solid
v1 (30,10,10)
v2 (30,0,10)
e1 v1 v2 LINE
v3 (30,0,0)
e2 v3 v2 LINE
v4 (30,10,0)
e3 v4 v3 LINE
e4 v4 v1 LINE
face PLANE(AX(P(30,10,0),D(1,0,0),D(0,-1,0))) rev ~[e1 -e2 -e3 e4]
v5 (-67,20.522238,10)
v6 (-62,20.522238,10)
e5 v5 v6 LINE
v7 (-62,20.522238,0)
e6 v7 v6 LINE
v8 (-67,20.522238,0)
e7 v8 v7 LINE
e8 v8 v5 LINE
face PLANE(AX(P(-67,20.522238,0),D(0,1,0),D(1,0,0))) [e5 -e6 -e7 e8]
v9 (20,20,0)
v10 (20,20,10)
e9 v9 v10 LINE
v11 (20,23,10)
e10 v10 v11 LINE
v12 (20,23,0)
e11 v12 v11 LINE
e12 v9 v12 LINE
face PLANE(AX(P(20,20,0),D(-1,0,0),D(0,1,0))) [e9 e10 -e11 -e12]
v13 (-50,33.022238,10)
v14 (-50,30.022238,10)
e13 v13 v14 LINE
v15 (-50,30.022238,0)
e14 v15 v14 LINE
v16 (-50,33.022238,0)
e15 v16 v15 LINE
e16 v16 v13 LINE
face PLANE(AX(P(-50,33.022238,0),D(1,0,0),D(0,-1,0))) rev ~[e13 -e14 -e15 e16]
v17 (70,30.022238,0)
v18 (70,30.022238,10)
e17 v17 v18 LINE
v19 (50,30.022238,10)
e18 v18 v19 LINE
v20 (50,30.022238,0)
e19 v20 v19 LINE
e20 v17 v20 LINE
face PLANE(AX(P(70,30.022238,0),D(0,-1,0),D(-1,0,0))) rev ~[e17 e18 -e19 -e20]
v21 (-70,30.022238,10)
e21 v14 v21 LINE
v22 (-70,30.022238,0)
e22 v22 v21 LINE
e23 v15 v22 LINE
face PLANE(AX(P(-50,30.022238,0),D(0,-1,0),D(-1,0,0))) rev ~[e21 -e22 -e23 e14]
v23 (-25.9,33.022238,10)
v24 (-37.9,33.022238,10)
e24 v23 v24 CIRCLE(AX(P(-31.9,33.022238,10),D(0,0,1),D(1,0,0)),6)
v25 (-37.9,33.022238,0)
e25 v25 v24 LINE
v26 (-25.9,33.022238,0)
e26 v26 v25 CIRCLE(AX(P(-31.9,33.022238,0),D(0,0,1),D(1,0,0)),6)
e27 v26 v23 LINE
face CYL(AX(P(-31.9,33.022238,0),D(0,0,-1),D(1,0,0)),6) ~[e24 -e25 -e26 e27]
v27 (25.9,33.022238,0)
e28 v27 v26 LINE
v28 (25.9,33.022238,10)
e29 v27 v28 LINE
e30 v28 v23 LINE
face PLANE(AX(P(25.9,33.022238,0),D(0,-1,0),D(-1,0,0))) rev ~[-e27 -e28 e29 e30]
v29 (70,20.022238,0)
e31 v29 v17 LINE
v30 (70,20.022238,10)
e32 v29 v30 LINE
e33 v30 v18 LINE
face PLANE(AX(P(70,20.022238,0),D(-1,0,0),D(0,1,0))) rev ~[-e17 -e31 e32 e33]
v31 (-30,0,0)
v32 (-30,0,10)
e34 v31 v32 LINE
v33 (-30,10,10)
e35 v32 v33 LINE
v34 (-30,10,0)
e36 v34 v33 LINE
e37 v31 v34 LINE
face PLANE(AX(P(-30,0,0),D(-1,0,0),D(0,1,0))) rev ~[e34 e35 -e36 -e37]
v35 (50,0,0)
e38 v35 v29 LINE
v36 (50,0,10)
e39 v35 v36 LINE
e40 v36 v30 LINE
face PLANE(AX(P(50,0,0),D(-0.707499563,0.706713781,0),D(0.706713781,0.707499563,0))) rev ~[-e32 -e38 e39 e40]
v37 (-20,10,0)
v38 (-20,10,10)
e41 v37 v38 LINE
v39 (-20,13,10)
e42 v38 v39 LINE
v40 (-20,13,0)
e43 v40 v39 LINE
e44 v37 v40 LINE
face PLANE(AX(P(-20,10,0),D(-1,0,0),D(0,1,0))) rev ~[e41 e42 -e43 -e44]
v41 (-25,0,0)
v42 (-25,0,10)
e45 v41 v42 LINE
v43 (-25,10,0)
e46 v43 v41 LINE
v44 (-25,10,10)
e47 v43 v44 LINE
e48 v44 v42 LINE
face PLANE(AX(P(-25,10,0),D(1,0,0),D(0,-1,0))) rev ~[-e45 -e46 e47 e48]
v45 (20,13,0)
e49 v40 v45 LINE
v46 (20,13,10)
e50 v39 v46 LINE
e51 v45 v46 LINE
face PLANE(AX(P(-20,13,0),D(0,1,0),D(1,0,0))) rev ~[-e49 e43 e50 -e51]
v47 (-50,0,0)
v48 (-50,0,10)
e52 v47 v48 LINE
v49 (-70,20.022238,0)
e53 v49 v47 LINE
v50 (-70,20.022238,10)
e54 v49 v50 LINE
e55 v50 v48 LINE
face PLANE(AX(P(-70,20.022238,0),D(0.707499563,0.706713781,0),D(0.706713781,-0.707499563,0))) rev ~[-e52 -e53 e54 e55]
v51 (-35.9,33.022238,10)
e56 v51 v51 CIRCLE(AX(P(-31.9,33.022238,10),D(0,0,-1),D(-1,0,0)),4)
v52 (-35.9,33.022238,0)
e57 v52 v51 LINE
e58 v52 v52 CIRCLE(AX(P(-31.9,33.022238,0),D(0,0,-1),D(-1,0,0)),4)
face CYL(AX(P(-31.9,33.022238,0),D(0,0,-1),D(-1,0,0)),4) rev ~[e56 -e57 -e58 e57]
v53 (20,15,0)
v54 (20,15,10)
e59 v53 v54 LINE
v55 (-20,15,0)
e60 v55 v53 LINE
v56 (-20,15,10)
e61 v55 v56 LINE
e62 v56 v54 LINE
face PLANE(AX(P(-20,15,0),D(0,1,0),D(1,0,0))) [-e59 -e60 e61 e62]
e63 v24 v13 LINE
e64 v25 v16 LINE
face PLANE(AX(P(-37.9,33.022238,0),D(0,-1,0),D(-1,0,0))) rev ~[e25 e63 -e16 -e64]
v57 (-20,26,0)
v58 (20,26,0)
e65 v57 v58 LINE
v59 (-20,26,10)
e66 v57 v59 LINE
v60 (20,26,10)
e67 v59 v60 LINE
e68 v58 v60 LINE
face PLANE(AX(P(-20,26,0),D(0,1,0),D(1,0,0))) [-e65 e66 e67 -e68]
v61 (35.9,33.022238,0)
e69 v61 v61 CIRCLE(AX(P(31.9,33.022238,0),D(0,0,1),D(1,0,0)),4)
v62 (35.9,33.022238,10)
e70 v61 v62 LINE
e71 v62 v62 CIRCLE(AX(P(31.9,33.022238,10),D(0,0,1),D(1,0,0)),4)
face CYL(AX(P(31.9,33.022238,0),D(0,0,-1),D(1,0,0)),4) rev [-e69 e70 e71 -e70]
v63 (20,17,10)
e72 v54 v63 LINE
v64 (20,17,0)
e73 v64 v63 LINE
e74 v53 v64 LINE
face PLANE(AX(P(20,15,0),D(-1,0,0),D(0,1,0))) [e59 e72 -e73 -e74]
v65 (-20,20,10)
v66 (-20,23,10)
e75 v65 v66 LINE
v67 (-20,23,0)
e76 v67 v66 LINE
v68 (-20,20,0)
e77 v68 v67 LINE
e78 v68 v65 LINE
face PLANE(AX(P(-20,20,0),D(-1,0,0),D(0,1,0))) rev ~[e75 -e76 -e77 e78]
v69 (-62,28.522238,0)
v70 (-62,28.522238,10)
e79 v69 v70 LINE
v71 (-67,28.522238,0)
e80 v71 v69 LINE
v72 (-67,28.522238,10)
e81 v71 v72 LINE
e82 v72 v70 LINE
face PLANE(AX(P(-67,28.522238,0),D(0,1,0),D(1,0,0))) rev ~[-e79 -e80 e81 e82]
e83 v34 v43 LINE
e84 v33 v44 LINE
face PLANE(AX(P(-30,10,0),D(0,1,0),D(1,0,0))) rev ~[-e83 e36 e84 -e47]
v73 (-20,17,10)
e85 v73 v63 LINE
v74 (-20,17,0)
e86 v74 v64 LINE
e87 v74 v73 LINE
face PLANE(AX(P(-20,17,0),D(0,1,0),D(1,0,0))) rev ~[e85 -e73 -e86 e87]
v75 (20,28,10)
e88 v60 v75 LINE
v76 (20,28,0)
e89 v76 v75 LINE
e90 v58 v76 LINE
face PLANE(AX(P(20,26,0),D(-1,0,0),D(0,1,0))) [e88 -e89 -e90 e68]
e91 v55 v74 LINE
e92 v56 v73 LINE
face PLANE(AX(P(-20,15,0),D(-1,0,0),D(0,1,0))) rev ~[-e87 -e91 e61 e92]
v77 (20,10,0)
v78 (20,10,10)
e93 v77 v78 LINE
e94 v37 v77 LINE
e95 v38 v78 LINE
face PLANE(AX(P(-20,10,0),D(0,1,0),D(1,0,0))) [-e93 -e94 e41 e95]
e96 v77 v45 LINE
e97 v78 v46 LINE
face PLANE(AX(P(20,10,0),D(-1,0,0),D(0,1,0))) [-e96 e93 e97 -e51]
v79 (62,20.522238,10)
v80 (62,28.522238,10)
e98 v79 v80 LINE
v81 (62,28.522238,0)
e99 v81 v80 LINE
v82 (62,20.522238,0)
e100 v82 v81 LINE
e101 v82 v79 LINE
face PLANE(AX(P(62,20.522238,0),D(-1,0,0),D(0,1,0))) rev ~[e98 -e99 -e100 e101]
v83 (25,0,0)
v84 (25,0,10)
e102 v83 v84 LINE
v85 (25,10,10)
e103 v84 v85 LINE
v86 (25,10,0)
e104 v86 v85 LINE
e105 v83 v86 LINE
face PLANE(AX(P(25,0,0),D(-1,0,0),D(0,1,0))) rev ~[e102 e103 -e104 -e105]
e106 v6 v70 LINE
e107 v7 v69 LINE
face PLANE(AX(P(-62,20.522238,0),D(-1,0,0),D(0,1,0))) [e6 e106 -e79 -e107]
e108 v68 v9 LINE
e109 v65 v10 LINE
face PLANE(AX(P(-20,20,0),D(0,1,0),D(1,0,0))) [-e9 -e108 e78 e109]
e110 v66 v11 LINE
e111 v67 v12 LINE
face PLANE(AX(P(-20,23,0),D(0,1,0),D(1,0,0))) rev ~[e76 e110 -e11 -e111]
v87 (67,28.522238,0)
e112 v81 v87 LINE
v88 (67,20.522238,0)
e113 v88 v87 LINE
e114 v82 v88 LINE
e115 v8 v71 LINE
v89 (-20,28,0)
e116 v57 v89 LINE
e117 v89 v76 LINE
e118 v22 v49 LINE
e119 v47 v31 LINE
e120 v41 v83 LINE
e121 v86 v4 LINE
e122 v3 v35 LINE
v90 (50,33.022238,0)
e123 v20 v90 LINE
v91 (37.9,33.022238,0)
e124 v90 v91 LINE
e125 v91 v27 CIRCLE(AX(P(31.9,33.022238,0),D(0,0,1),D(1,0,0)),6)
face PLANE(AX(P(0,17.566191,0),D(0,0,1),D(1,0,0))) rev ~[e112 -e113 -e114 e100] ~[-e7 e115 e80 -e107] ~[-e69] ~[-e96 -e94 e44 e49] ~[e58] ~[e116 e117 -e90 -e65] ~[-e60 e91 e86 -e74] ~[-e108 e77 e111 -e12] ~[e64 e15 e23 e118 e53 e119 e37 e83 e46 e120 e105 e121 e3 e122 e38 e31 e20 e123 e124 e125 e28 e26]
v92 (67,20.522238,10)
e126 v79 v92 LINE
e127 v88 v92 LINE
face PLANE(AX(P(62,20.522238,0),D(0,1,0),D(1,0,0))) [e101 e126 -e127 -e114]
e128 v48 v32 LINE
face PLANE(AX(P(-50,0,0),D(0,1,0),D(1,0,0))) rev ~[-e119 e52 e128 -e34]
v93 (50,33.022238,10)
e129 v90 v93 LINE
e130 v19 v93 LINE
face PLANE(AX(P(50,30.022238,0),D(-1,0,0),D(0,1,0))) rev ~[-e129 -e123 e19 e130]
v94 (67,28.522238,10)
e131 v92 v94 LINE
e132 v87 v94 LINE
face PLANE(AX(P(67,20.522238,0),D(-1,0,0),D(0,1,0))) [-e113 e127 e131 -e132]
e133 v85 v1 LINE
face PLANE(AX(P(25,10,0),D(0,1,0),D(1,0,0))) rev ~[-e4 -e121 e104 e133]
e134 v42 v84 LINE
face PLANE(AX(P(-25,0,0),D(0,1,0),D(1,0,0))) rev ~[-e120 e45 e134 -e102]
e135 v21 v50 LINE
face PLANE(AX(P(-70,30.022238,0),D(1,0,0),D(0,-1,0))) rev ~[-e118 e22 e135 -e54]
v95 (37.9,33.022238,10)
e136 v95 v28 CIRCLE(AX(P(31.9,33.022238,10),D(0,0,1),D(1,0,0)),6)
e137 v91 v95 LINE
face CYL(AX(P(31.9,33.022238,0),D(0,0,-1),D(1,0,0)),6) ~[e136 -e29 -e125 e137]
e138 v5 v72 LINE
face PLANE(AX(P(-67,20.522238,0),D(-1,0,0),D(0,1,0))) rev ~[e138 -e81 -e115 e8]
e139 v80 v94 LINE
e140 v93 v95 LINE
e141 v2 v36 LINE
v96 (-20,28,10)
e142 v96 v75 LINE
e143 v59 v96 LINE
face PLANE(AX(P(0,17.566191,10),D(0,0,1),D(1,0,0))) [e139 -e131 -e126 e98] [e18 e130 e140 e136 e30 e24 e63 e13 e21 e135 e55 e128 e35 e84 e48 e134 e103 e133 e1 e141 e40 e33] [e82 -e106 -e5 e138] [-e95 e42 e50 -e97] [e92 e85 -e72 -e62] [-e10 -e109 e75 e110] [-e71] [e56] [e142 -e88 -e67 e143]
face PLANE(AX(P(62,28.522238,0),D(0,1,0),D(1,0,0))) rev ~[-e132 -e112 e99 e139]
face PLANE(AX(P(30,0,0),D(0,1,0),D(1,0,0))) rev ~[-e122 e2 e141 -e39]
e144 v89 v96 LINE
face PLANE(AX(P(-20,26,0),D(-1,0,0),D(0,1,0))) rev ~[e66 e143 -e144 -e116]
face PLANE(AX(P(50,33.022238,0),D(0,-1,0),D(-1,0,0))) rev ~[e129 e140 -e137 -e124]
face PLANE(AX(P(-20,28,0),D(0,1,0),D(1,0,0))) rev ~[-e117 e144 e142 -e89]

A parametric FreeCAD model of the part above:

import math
import FreeCAD as App
import Part
import Sketcher

V = App.Vector

doc = App.newDocument("Part")
body = doc.addObject("PartDesign::Body", "Body")

sketch1 = body.newObject("Sketcher::SketchObject", "Sketch")
sketch1.AttachmentSupport = (doc.getObject("XY_Plane"), [""])
sketch1.MapMode = "FlatFace"
sketch1.addGeometry([
    Part.LineSegment(V(-25, 10, 0), V(-25, 0, 0)),
    Part.LineSegment(V(-25, 0, 0), V(25, 0, 0)),
    Part.LineSegment(V(25, 0, 0), V(25, 10, 0)),
    Part.LineSegment(V(25, 10, 0), V(30, 10, 0)),
    Part.LineSegment(V(30, 10, 0), V(30, 0, 0)),
    Part.LineSegment(V(30, 0, 0), V(50, 0, 0)),
    Part.LineSegment(V(50, 0, 0), V(70, 20, 0)),
    Part.LineSegment(V(70, 20, 0), V(70, 30, 0)),
    Part.LineSegment(V(70, 30, 0), V(50, 30, 0)),
    Part.LineSegment(V(50, 30, 0), V(50, 33, 0)),
    Part.LineSegment(V(50, 33, 0), V(37.9, 33, 0)),
    Part.ArcOfCircle(Part.Circle(V(31.9, 33, 0), V(0, 0, 1), 6), math.radians(0), math.radians(180)),
    Part.LineSegment(V(25.9, 33, 0), V(-25.9, 33, 0)),
    Part.ArcOfCircle(Part.Circle(V(-31.9, 33, 0), V(0, 0, 1), 6), math.radians(0), math.radians(180)),
    Part.LineSegment(V(-37.9, 33, 0), V(-50, 33, 0)),
    Part.LineSegment(V(-50, 33, 0), V(-50, 30, 0)),
    Part.LineSegment(V(-50, 30, 0), V(-70, 30, 0)),
    Part.LineSegment(V(-70, 30, 0), V(-70, 20, 0)),
    Part.LineSegment(V(-70, 20, 0), V(-50, 0, 0)),
    Part.LineSegment(V(-50, 0, 0), V(-30, 0, 0)),
    Part.LineSegment(V(-30, 0, 0), V(-30, 10, 0)),
    Part.LineSegment(V(-30, 10, 0), V(-25, 10, 0)),
    Part.LineSegment(V(20, 10, 0), V(-20, 10, 0)),
    Part.LineSegment(V(-20, 10, 0), V(-20, 13, 0)),
    Part.LineSegment(V(-20, 13, 0), V(20, 13, 0)),
    Part.LineSegment(V(20, 13, 0), V(20, 10, 0)),
    Part.LineSegment(V(20, 15, 0), V(-20, 15, 0)),
    Part.LineSegment(V(-20, 15, 0), V(-20, 17, 0)),
    Part.LineSegment(V(-20, 17, 0), V(20, 17, 0)),
    Part.LineSegment(V(20, 17, 0), V(20, 15, 0)),
    Part.LineSegment(V(20, 20, 0), V(-20, 20, 0)),
    Part.LineSegment(V(-20, 20, 0), V(-20, 23, 0)),
    Part.LineSegment(V(-20, 23, 0), V(20, 23, 0)),
    Part.LineSegment(V(20, 23, 0), V(20, 20, 0)),
    Part.LineSegment(V(-62, 20.5, 0), V(-67, 20.5, 0)),
    Part.LineSegment(V(-67, 20.5, 0), V(-67, 28.5, 0)),
    Part.LineSegment(V(-67, 28.5, 0), V(-62, 28.5, 0)),
    Part.LineSegment(V(-62, 28.5, 0), V(-62, 20.5, 0)),
    Part.Circle(V(-31.9, 33, 0), V(0, 0, 1), 4),
    Part.LineSegment(V(20, 26, 0), V(-20, 26, 0)),
    Part.LineSegment(V(-20, 26, 0), V(-20, 28, 0)),
    Part.LineSegment(V(-20, 28, 0), V(20, 28, 0)),
    Part.LineSegment(V(20, 28, 0), V(20, 26, 0)),
    Part.LineSegment(V(67, 20.5, 0), V(62, 20.5, 0)),
    Part.LineSegment(V(62, 20.5, 0), V(62, 28.5, 0)),
    Part.LineSegment(V(62, 28.5, 0), V(67, 28.5, 0)),
    Part.LineSegment(V(67, 28.5, 0), V(67, 20.5, 0)),
    Part.Circle(V(31.9, 33, 0), V(0, 0, 1), 4),
], False)
sketch1.addConstraint([
    Sketcher.Constraint("Coincident", 0, 2, 1, 1),
    Sketcher.Constraint("Coincident", 1, 2, 2, 1),
    Sketcher.Constraint("Coincident", 2, 2, 3, 1),
    Sketcher.Constraint("Coincident", 3, 2, 4, 1),
    Sketcher.Constraint("Coincident", 4, 2, 5, 1),
    Sketcher.Constraint("Coincident", 5, 2, 6, 1),
    Sketcher.Constraint("Coincident", 6, 2, 7, 1),
    Sketcher.Constraint("Coincident", 7, 2, 8, 1),
    Sketcher.Constraint("Coincident", 8, 2, 9, 1),
    Sketcher.Constraint("Coincident", 9, 2, 10, 1),
    Sketcher.Constraint("Coincident", 10, 2, 11, 1),
    Sketcher.Constraint("Coincident", 11, 2, 12, 1),
    Sketcher.Constraint("Coincident", 12, 2, 13, 1),
    Sketcher.Constraint("Coincident", 13, 2, 14, 1),
    Sketcher.Constraint("Coincident", 14, 2, 15, 1),
    Sketcher.Constraint("Coincident", 15, 2, 16, 1),
    Sketcher.Constraint("Coincident", 16, 2, 17, 1),
    Sketcher.Constraint("Coincident", 17, 2, 18, 1),
    Sketcher.Constraint("Coincident", 18, 2, 19, 1),
    Sketcher.Constraint("Coincident", 19, 2, 20, 1),
    Sketcher.Constraint("Coincident", 20, 2, 21, 1),
    Sketcher.Constraint("Coincident", 21, 2, 0, 1),
    Sketcher.Constraint("Coincident", 22, 2, 23, 1),
    Sketcher.Constraint("Coincident", 23, 2, 24, 1),
    Sketcher.Constraint("Coincident", 24, 2, 25, 1),
    Sketcher.Constraint("Coincident", 25, 2, 22, 1),
    Sketcher.Constraint("Coincident", 26, 2, 27, 1),
    Sketcher.Constraint("Coincident", 27, 2, 28, 1),
    Sketcher.Constraint("Coincident", 28, 2, 29, 1),
    Sketcher.Constraint("Coincident", 29, 2, 26, 1),
    Sketcher.Constraint("Coincident", 30, 2, 31, 1),
    Sketcher.Constraint("Coincident", 31, 2, 32, 1),
    Sketcher.Constraint("Coincident", 32, 2, 33, 1),
    Sketcher.Constraint("Coincident", 33, 2, 30, 1),
    Sketcher.Constraint("Coincident", 34, 2, 35, 1),
    Sketcher.Constraint("Coincident", 35, 2, 36, 1),
    Sketcher.Constraint("Coincident", 36, 2, 37, 1),
    Sketcher.Constraint("Coincident", 37, 2, 34, 1),
    Sketcher.Constraint("Coincident", 39, 2, 40, 1),
    Sketcher.Constraint("Coincident", 40, 2, 41, 1),
    Sketcher.Constraint("Coincident", 41, 2, 42, 1),
    Sketcher.Constraint("Coincident", 42, 2, 39, 1),
    Sketcher.Constraint("Coincident", 43, 2, 44, 1),
    Sketcher.Constraint("Coincident", 44, 2, 45, 1),
    Sketcher.Constraint("Coincident", 45, 2, 46, 1),
    Sketcher.Constraint("Coincident", 46, 2, 43, 1),
    Sketcher.Constraint("Vertical", 0),
    Sketcher.Constraint("Horizontal", 1),
    Sketcher.Constraint("Vertical", 2),
    Sketcher.Constraint("Horizontal", 3),
    Sketcher.Constraint("Vertical", 4),
    Sketcher.Constraint("Horizontal", 5),
    Sketcher.Constraint("Vertical", 7),
    Sketcher.Constraint("Horizontal", 8),
    Sketcher.Constraint("Vertical", 9),
    Sketcher.Constraint("Horizontal", 10),
    Sketcher.Constraint("Horizontal", 12),
    Sketcher.Constraint("Horizontal", 14),
    Sketcher.Constraint("Vertical", 15),
    Sketcher.Constraint("Horizontal", 16),
    Sketcher.Constraint("Vertical", 17),
    Sketcher.Constraint("Horizontal", 19),
    Sketcher.Constraint("Vertical", 20),
    Sketcher.Constraint("Horizontal", 21),
    Sketcher.Constraint("Horizontal", 22),
    Sketcher.Constraint("Vertical", 23),
    Sketcher.Constraint("Horizontal", 24),
    Sketcher.Constraint("Vertical", 25),
    Sketcher.Constraint("Horizontal", 26),
    Sketcher.Constraint("Vertical", 27),
    Sketcher.Constraint("Horizontal", 28),
    Sketcher.Constraint("Vertical", 29),
    Sketcher.Constraint("Horizontal", 30),
    Sketcher.Constraint("Vertical", 31),
    Sketcher.Constraint("Horizontal", 32),
    Sketcher.Constraint("Vertical", 33),
    Sketcher.Constraint("Horizontal", 34),
    Sketcher.Constraint("Vertical", 35),
    Sketcher.Constraint("Horizontal", 36),
    Sketcher.Constraint("Vertical", 37),
    Sketcher.Constraint("Horizontal", 39),
    Sketcher.Constraint("Vertical", 40),
    Sketcher.Constraint("Horizontal", 41),
    Sketcher.Constraint("Vertical", 42),
    Sketcher.Constraint("Horizontal", 43),
    Sketcher.Constraint("Vertical", 44),
    Sketcher.Constraint("Horizontal", 45),
    Sketcher.Constraint("Vertical", 46),
    Sketcher.Constraint("Coincident", 38, 3, 13, 3),
    Sketcher.Constraint("Coincident", 47, 3, 11, 3),
    Sketcher.Constraint("Equal", 11, 13),
    Sketcher.Constraint("Equal", 38, 47),
    Sketcher.Constraint("Symmetric", 0, 2, 1, 2, -1, 1),
    Sketcher.Constraint("Symmetric", 5, 2, 18, 2, -1, 1),
    Sketcher.Constraint("Symmetric", 11, 3, 13, 3, -2),
    Sketcher.Constraint("Symmetric", 9, 2, 14, 2, -2),
    Sketcher.Constraint("Symmetric", 7, 2, 16, 2, -2),
    Sketcher.Constraint("Symmetric", 4, 2, 19, 2, -2),
    Sketcher.Constraint("Symmetric", 37, 2, 43, 2, -2),
    Sketcher.Constraint("Symmetric", 35, 2, 45, 2, -2),
    Sketcher.Constraint("Horizontal", 47, 3, 9, 2),
    Sketcher.Constraint("Horizontal", 10, 2, 11, 2),
    Sketcher.Constraint("Horizontal", 6, 2, 17, 2),
    Sketcher.Constraint("Horizontal", 3, 2, 20, 2),
    Sketcher.Constraint("Horizontal", 21, 2, 22, 2),
    Sketcher.Constraint("Vertical", 5, 2, 8, 2),
    Sketcher.Constraint("Vertical", 23, 2, 26, 2),
    Sketcher.Constraint("Vertical", 25, 2, 28, 2),
    Sketcher.Constraint("Vertical", 27, 2, 30, 2),
    Sketcher.Constraint("Vertical", 29, 2, 32, 2),
    Sketcher.Constraint("Vertical", 31, 2, 39, 2),
    Sketcher.Constraint("Vertical", 33, 2, 41, 2),
    Sketcher.Constraint("Equal", 5, 8),
    Sketcher.Constraint("Equal", 21, 34),
    Sketcher.Constraint("Equal", 4, 7),
    Sketcher.Constraint("Equal", 15, 23),
    Sketcher.Constraint("Equal", 25, 31),
    Sketcher.Constraint("Equal", 29, 40),
    Sketcher.Constraint("Diameter", 38, 8.0),
    Sketcher.Constraint("Radius", 11, 6.0),
    Sketcher.Constraint("DistanceX", 1, 1, 1, 2, 50.0),
    Sketcher.Constraint("DistanceX", 3, 1, 3, 2, 5.0),
    Sketcher.Constraint("DistanceX", 5, 1, 5, 2, 20.0),
    Sketcher.Constraint("DistanceX", 22, 2, 22, 1, 40.0),
    Sketcher.Constraint("DistanceY", 0, 2, 0, 1, 10.0),
    Sketcher.Constraint("DistanceY", 9, 1, 9, 2, 3.0),
    Sketcher.Constraint("DistanceY", 27, 1, 27, 2, 2.0),
    Sketcher.Constraint("DistanceY", 35, 1, 35, 2, 8.0),
    Sketcher.Constraint("DistanceX", 10, 2, 10, 1, 12.1),
    Sketcher.Constraint("DistanceX", 22, 2, -1, 1, 20.0),
    Sketcher.Constraint("DistanceY", -1, 1, 26, 2, 15.0),
    Sketcher.Constraint("DistanceY", -1, 1, 30, 2, 20.0),
    Sketcher.Constraint("DistanceX", 34, 2, -1, 1, 67.0),
    Sketcher.Constraint("DistanceY", -1, 1, 39, 2, 26.0),
    Sketcher.Constraint("Distance", 6, 28.3),
    Sketcher.Constraint("DistanceY", 17, 2, 34, 2, 0.5),
])
pad1 = body.newObject("PartDesign::Pad", "Pad")
pad1.Profile = sketch1
pad1.Length = 10

doc.recompute()
